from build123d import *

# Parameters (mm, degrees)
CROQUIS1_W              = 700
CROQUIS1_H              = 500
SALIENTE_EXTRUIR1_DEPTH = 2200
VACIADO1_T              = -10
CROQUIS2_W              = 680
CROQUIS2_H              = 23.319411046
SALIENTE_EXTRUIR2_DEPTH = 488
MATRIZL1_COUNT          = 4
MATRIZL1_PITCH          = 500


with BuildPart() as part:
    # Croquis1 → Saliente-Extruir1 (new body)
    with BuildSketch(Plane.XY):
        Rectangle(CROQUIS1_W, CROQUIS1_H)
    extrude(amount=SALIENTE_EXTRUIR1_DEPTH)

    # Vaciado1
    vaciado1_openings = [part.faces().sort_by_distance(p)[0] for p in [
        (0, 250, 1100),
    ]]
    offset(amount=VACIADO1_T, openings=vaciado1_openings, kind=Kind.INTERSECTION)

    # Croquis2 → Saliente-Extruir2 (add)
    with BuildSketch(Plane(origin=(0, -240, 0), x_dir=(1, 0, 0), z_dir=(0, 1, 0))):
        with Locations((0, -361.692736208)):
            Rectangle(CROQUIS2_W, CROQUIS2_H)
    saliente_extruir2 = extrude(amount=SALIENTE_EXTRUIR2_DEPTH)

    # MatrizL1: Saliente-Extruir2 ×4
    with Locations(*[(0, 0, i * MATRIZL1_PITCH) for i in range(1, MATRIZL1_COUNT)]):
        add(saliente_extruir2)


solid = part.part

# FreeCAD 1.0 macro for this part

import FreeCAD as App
import Part
import Sketcher
from FreeCAD import Vector
Q = App.Units.Quantity


def faces_at(feature, points):
    """Names of the faces that lie closest to the given points."""
    faces = feature.Shape.Faces
    near = lambda p: min(range(len(faces)), key=lambda i: faces[i].distToShape(Part.Vertex(*p))[0])
    return sorted({f"Face{near(p) + 1}" for p in points})

doc = App.newDocument("Part")
body = doc.addObject("PartDesign::Body", "Body")

sketch1 = body.newObject("Sketcher::SketchObject", "Sketch")
sketch1.AttachmentSupport = (doc.getObject("XY_Plane"), [""])
sketch1.MapMode = "FlatFace"
sketch1.addGeometry([
    Part.LineSegment(Vector(-350, 250, 0), Vector(-350, -250, 0)),
    Part.LineSegment(Vector(-350, -250, 0), Vector(350, -250, 0)),
    Part.LineSegment(Vector(350, -250, 0), Vector(350, 250, 0)),
    Part.LineSegment(Vector(350, 250, 0), Vector(-350, 250, 0)),
], False)
sketch1.addConstraint([
    Sketcher.Constraint("Coincident", 0, 2, 1, 1),
    Sketcher.Constraint("Coincident", 1, 2, 2, 1),
    Sketcher.Constraint("Coincident", 2, 2, 3, 1),
    Sketcher.Constraint("Coincident", 3, 2, 0, 1),
    Sketcher.Constraint("Vertical", 0),
    Sketcher.Constraint("Horizontal", 1),
    Sketcher.Constraint("Vertical", 2),
    Sketcher.Constraint("Horizontal", 3),
    Sketcher.Constraint("Symmetric", 0, 2, 2, 2, -1, 1),
    Sketcher.Constraint("DistanceX", 1, 1, 1, 2, Q("700 mm")),
    Sketcher.Constraint("DistanceY", 0, 2, 0, 1, Q("500 mm")),
])
pad1 = body.newObject("PartDesign::Pad", "Pad")
pad1.Profile = sketch1
pad1.Length = 2200
doc.recompute()

thickness = body.newObject("PartDesign::Thickness", "Thickness")
thickness.Base = (pad1, faces_at(pad1, [(0, 250, 1100)]))
thickness.Value = 10
thickness.Reversed = True
thickness.Join = "Intersection"

sketch2 = body.newObject("Sketcher::SketchObject", "Sketch001")
sketch2.AttachmentSupport = (doc.getObject("XZ_Plane"), [""])
sketch2.MapMode = "FlatFace"
sketch2.AttachmentOffset = App.Placement(Vector(0, 0, 240), App.Rotation())
sketch2.addGeometry([
    Part.LineSegment(Vector(-340, 350, 0), Vector(-340, 373, 0)),
    Part.LineSegment(Vector(-340, 373, 0), Vector(340, 373, 0)),
    Part.LineSegment(Vector(340, 373, 0), Vector(340, 350, 0)),
    Part.LineSegment(Vector(340, 350, 0), Vector(-340, 350, 0)),
], False)
sketch2.addConstraint([
    Sketcher.Constraint("Coincident", 0, 2, 1, 1),
    Sketcher.Constraint("Coincident", 1, 2, 2, 1),
    Sketcher.Constraint("Coincident", 2, 2, 3, 1),
    Sketcher.Constraint("Coincident", 3, 2, 0, 1),
    Sketcher.Constraint("Vertical", 0),
    Sketcher.Constraint("Horizontal", 1),
    Sketcher.Constraint("Vertical", 2),
    Sketcher.Constraint("Horizontal", 3),
    Sketcher.Constraint("DistanceX", 1, 1, 1, 2, Q("680 mm")),
    Sketcher.Constraint("DistanceX", 0, 2, -1, 1, Q("340 mm")),
    Sketcher.Constraint("DistanceY", 0, 1, 0, 2, Q("23.319411 mm")),
    Sketcher.Constraint("DistanceY", -1, 1, 0, 2, Q("373.352442 mm")),
])
pad2 = body.newObject("PartDesign::Pad", "Pad001")
pad2.Profile = sketch2
pad2.Length = 488
pad2.Reversed = True
doc.recompute()

linearpattern = body.newObject("PartDesign::LinearPattern", "LinearPattern")
linearpattern.Originals = [pad2]
linearpattern.Direction = (doc.getObject("Z_Axis"), [""])
linearpattern.Mode = "offset"
linearpattern.Offset = 500
linearpattern.Occurrences = 4
body.Tip = linearpattern

doc.recompute()
